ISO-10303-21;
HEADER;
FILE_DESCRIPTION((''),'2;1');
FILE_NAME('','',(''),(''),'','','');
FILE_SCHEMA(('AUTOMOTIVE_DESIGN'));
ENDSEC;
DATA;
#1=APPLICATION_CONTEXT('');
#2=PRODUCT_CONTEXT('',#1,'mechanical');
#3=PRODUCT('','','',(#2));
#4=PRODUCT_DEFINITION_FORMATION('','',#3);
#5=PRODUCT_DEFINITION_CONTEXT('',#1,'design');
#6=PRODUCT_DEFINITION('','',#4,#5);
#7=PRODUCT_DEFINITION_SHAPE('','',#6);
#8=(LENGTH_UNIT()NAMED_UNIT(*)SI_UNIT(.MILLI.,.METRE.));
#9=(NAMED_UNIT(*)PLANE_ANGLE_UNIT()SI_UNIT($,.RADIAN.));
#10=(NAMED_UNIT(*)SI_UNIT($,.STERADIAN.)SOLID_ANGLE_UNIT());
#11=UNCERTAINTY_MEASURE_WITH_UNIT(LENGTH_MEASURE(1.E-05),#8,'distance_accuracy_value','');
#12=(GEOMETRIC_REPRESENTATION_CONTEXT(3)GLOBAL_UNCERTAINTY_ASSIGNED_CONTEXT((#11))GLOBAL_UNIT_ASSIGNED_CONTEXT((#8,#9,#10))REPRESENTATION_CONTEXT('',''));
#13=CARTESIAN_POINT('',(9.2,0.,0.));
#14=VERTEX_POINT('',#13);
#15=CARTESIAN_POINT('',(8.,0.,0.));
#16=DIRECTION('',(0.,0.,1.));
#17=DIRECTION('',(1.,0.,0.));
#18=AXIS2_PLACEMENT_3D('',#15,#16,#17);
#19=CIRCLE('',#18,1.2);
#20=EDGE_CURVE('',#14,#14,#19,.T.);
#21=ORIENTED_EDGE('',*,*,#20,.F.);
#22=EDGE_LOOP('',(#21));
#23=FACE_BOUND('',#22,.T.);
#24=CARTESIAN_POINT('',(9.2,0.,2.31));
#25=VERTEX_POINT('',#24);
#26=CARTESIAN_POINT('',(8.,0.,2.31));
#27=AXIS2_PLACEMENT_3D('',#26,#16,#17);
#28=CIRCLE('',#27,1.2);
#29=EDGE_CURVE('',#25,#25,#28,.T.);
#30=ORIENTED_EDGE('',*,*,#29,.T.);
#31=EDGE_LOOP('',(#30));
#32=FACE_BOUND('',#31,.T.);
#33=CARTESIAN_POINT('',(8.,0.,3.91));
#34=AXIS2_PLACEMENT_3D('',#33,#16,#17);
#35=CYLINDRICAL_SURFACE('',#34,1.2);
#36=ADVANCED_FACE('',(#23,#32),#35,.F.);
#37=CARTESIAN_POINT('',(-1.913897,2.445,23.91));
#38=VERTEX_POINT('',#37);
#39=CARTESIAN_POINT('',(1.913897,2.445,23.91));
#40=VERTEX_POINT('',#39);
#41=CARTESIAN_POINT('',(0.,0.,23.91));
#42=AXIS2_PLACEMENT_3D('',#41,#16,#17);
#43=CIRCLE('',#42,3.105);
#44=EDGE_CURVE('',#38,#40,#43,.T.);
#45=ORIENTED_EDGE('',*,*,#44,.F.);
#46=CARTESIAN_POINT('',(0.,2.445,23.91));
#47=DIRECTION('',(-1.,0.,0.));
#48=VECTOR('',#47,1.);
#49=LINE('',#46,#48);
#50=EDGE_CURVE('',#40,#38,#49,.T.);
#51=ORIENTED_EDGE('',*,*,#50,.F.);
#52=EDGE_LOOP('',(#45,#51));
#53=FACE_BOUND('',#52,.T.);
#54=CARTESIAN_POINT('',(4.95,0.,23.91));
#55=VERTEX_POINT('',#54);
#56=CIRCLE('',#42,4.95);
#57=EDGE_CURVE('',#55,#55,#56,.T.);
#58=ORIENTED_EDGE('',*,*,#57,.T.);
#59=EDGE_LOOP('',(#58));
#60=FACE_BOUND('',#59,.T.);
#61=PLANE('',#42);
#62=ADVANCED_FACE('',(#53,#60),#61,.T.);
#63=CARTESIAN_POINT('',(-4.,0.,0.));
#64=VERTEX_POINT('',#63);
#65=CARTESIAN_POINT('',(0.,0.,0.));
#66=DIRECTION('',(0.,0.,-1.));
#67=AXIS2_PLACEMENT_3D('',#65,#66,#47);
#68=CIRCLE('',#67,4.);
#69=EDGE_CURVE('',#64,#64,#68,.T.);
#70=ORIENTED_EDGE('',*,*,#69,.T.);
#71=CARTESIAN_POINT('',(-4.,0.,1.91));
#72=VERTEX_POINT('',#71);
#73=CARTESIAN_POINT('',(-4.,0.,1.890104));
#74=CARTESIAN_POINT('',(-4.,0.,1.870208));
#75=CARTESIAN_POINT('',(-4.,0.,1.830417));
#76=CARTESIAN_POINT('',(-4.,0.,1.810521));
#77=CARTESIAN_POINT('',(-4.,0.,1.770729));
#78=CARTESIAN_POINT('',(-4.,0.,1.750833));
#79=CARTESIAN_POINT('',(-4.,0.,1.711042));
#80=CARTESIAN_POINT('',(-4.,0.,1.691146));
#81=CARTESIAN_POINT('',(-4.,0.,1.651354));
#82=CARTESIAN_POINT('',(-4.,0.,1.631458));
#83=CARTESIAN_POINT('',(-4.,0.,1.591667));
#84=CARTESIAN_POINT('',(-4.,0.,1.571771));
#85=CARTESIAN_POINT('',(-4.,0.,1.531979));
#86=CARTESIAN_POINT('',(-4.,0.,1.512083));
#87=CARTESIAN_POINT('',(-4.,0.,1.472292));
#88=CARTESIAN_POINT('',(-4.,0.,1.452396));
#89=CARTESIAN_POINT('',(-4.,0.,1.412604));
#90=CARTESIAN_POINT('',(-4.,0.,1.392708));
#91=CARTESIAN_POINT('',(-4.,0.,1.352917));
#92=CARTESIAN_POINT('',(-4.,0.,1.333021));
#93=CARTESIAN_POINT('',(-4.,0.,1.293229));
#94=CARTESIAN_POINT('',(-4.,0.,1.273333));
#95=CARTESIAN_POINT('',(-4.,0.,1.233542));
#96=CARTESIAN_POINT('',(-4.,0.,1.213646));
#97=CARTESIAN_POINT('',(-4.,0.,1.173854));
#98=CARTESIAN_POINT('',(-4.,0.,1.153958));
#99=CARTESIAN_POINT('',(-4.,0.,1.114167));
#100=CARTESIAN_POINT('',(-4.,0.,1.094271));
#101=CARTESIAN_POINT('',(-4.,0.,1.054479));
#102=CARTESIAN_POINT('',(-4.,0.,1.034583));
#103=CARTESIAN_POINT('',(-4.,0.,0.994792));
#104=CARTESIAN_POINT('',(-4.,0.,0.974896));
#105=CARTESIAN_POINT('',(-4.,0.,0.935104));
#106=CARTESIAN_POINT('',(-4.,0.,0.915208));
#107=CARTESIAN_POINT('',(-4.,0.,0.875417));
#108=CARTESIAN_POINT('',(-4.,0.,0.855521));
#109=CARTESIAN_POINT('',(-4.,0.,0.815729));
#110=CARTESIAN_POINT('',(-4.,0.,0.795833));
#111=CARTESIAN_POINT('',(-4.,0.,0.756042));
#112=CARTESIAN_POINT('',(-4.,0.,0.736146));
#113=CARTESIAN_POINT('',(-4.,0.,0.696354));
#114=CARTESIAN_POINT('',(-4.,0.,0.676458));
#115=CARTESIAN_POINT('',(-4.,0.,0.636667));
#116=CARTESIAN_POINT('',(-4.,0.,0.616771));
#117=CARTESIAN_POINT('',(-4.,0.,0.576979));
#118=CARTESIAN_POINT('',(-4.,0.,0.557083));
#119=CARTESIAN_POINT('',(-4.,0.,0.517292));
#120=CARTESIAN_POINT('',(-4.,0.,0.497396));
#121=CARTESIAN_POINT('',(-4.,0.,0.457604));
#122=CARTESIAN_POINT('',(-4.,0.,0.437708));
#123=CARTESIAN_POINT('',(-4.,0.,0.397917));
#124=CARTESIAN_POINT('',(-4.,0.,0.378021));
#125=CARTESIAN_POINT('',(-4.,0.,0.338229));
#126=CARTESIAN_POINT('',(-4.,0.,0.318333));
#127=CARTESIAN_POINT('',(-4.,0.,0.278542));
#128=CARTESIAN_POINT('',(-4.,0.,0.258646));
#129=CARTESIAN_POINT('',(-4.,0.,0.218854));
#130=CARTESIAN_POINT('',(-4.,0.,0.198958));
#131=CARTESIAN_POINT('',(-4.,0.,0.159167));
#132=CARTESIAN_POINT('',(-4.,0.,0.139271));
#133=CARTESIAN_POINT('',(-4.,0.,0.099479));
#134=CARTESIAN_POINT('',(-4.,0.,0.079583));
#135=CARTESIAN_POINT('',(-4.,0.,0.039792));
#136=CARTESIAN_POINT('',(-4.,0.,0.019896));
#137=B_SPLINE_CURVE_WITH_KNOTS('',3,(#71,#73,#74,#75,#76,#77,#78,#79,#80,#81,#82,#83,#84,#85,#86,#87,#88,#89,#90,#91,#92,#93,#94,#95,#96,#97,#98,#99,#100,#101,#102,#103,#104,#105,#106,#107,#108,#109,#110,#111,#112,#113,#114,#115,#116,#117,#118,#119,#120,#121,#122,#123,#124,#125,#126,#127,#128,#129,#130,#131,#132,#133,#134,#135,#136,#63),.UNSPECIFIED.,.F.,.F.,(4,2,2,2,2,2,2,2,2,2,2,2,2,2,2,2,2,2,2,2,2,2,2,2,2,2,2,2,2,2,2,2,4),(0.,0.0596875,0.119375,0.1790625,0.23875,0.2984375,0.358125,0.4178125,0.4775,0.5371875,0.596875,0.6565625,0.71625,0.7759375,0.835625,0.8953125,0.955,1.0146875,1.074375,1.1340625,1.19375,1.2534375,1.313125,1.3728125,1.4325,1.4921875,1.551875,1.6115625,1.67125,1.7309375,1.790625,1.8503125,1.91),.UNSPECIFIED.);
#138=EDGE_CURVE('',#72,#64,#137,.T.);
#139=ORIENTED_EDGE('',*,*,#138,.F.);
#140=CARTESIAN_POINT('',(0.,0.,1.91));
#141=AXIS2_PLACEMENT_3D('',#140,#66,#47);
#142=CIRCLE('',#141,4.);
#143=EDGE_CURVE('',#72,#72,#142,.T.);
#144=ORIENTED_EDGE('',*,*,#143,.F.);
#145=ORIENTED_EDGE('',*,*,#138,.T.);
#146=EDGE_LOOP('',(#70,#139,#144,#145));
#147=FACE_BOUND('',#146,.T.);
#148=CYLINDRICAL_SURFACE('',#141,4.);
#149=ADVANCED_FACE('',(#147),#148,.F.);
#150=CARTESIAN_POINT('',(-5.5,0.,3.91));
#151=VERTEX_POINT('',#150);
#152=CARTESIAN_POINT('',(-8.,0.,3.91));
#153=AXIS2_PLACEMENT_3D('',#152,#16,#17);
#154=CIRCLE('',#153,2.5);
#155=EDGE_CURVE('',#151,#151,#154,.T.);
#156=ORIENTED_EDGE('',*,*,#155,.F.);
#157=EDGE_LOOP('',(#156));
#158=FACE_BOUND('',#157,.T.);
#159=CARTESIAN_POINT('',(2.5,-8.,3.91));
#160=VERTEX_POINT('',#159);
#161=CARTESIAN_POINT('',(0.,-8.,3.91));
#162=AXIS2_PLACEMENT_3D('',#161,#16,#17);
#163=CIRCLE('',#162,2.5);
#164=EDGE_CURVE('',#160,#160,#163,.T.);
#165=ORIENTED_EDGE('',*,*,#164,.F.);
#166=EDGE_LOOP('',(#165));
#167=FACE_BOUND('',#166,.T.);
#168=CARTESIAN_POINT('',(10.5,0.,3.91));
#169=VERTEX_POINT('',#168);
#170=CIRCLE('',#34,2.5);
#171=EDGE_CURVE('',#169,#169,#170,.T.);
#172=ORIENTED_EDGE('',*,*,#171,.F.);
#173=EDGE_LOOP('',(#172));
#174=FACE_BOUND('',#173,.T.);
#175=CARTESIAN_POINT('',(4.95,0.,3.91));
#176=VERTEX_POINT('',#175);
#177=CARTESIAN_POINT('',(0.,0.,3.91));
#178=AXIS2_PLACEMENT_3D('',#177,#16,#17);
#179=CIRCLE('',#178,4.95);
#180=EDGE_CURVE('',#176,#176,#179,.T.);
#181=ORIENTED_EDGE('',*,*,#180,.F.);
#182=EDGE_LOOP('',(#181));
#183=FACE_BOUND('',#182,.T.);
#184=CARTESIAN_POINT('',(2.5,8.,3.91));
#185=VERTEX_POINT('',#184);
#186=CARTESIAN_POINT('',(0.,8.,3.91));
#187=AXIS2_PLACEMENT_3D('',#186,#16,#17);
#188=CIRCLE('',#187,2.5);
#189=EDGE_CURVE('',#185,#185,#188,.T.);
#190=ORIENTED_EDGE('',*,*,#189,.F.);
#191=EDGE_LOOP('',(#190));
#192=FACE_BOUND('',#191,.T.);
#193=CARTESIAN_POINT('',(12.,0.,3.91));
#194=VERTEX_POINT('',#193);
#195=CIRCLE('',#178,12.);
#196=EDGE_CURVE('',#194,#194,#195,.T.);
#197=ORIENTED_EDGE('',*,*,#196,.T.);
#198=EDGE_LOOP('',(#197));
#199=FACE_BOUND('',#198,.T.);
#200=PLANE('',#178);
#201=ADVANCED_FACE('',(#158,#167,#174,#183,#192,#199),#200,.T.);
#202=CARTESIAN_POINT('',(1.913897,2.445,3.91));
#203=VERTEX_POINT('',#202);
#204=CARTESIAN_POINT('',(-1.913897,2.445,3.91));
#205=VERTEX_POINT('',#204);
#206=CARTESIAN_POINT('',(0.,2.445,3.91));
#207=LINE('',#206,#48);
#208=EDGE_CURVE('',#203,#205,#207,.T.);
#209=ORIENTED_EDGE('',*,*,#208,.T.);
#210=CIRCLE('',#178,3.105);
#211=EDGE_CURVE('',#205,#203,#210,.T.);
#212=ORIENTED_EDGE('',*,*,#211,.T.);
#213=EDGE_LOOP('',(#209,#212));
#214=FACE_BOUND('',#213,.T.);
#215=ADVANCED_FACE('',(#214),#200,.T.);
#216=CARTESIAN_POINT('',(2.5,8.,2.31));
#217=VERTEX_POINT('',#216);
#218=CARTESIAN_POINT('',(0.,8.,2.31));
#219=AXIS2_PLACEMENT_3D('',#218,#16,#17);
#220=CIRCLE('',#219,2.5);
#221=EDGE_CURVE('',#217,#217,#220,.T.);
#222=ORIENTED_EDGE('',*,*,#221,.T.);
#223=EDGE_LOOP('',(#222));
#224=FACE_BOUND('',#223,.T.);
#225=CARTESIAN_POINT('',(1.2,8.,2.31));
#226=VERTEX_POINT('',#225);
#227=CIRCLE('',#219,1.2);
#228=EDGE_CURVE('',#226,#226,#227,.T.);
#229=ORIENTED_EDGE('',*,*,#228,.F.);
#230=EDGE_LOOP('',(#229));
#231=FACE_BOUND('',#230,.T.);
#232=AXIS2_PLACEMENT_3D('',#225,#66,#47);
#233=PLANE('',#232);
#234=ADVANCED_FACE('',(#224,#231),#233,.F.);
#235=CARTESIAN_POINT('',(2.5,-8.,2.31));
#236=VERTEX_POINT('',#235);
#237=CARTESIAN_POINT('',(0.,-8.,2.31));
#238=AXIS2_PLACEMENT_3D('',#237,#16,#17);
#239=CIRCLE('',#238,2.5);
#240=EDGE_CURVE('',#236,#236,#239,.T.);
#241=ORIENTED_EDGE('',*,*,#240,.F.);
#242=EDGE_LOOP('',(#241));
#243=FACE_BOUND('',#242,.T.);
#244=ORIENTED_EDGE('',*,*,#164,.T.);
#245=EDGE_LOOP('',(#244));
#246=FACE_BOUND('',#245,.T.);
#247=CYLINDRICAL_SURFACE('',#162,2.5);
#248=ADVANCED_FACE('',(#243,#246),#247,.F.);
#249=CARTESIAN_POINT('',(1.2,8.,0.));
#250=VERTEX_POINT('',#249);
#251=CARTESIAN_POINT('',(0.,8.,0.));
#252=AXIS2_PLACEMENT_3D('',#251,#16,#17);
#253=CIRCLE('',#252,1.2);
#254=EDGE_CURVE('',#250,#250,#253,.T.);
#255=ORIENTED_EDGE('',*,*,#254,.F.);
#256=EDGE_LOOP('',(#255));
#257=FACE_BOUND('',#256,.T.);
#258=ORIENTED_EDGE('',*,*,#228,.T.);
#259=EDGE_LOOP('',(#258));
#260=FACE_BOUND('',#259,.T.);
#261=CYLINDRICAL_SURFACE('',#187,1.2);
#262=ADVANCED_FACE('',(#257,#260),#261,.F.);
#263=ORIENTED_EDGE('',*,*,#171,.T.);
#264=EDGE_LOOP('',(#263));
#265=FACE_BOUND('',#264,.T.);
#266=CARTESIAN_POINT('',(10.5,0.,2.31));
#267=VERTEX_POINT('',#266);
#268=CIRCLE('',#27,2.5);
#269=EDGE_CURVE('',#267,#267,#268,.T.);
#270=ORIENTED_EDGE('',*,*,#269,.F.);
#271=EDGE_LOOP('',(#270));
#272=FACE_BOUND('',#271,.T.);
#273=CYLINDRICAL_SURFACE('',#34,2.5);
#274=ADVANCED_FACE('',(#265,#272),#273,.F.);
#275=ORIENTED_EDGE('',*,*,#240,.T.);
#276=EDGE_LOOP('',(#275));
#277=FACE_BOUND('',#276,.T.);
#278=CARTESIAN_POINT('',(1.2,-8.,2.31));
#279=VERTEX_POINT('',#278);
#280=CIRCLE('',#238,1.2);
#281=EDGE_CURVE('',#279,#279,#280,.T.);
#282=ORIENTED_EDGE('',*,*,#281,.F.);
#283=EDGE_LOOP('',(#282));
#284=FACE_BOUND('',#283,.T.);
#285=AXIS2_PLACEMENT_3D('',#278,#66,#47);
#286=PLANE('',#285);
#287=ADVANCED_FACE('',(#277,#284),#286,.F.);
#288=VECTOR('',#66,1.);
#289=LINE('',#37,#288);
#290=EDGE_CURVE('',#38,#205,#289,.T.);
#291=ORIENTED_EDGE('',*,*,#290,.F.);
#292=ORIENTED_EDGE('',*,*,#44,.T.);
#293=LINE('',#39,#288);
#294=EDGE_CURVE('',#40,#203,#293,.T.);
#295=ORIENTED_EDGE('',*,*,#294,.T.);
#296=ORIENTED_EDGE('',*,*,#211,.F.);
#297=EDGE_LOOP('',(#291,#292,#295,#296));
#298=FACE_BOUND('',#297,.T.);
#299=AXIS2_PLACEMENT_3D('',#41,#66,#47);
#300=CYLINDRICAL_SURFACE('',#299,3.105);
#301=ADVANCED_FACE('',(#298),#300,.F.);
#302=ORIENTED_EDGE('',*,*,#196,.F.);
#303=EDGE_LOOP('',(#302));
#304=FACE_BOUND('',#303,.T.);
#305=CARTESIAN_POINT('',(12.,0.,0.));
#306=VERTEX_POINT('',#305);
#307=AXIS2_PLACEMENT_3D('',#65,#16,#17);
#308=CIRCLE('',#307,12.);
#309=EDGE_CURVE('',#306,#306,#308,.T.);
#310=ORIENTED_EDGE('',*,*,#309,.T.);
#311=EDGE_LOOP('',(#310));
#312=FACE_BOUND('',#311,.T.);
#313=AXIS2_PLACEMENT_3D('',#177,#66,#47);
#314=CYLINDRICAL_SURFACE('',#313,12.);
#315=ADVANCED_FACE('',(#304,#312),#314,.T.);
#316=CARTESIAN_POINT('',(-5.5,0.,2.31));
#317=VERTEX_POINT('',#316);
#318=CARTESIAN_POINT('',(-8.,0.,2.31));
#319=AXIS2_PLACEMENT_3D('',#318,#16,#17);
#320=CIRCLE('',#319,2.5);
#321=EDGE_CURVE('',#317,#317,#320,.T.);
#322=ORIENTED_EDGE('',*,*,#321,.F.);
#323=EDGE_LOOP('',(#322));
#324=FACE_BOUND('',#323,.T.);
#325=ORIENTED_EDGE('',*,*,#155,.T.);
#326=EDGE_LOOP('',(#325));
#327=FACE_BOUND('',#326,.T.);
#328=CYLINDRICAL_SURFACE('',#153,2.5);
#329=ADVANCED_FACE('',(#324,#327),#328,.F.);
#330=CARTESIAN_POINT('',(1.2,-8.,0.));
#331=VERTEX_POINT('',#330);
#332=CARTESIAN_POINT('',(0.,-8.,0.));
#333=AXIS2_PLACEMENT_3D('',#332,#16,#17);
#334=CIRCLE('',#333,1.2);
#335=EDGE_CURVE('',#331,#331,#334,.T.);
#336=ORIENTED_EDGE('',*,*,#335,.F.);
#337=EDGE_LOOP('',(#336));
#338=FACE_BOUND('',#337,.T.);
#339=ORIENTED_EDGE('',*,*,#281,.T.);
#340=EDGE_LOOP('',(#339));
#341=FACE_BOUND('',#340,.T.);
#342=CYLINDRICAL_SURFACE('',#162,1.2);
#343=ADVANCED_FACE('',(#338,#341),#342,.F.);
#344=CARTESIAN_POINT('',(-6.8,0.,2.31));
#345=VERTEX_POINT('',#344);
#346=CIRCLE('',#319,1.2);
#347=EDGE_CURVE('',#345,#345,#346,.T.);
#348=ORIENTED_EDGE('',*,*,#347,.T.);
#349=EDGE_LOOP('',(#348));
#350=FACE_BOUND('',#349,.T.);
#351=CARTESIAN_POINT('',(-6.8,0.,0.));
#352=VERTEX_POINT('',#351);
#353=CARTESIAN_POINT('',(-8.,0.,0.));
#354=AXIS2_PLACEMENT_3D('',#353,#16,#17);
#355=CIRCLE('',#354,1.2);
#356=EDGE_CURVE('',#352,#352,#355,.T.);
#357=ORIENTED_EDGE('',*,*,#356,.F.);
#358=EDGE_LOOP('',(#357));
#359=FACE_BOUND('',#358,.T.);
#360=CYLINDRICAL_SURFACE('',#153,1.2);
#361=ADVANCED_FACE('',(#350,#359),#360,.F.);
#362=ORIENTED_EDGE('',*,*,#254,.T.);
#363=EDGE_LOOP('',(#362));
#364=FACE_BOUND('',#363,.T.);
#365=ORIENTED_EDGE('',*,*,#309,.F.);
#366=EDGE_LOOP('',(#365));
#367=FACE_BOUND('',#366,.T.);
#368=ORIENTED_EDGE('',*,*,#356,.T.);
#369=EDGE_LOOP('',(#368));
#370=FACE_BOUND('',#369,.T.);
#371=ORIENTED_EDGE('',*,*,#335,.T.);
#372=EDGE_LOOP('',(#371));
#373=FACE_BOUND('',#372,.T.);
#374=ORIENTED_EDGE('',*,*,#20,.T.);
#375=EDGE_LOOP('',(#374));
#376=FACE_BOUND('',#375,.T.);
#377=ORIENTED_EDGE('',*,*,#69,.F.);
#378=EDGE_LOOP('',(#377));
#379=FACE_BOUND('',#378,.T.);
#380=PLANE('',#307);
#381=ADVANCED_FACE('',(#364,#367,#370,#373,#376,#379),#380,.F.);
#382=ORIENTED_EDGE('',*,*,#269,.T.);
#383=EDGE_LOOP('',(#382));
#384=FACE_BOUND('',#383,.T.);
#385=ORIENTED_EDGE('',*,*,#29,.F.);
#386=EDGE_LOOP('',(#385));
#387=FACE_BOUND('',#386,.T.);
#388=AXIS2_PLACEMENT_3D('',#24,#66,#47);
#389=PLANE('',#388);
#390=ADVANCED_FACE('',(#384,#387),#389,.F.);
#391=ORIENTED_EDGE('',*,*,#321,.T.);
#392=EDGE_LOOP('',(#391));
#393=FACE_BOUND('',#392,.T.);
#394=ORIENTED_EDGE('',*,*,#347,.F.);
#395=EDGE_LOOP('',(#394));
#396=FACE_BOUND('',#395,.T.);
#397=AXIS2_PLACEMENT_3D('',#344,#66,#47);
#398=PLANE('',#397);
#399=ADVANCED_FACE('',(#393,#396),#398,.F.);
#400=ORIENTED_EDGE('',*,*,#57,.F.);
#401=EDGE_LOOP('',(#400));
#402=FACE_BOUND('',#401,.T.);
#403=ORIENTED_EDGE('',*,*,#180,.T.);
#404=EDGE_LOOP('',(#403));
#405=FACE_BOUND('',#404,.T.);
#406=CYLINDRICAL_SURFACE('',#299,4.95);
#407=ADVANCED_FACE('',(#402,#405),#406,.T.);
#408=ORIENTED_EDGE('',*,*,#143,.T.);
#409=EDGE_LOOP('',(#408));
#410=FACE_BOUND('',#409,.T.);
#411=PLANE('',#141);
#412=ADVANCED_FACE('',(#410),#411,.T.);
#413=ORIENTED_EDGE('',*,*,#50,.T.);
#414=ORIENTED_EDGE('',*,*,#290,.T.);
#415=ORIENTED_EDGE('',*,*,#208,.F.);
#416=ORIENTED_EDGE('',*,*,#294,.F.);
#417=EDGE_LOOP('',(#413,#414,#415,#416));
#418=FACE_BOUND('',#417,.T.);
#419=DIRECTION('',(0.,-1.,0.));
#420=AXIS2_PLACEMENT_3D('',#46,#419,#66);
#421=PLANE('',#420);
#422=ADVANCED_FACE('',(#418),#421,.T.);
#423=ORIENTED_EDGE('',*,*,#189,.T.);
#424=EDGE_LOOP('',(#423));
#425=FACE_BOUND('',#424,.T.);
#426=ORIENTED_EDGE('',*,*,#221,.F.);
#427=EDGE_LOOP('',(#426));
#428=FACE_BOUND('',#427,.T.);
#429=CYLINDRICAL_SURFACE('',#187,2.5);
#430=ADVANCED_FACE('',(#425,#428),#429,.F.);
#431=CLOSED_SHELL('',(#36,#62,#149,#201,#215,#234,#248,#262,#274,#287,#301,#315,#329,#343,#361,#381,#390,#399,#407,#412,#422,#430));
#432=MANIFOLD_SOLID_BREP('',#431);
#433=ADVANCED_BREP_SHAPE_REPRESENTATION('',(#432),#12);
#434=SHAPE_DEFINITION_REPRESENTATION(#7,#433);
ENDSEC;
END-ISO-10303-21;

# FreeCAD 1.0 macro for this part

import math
import FreeCAD as App
import Part
import Sketcher
Q = App.Units.Quantity

doc = App.newDocument("Part")
body = doc.addObject("PartDesign::Body", "Body")

# Sketch on XY plane
sketch1 = doc.addObject("Sketcher::SketchObject", "Sketch")
body.addObject(sketch1)
sketch1.AttachmentSupport = (doc.XY_Plane, [""])
sketch1.MapMode = "FlatFace"
sketch1.addGeometry(Part.Circle(App.Vector(0, 0, 0), App.Vector(0, 0, 1), 12), False)
sketch1.addConstraint([
    Sketcher.Constraint("Coincident", 0, 3, -1, 1),
    Sketcher.Constraint("Diameter", 0, Q("24 mm")),
])
pad1 = doc.addObject("PartDesign::Pad", "Pad")
body.addObject(pad1)
pad1.Profile = sketch1
pad1.Length = 3.91

# Sketch on XY plane
sketch2 = doc.addObject("Sketcher::SketchObject", "Sketch001")
body.addObject(sketch2)
sketch2.AttachmentSupport = (doc.XY_Plane, [""])
sketch2.MapMode = "FlatFace"
sketch2.addGeometry(Part.Circle(App.Vector(0, 0, 0), App.Vector(0, 0, 1), 4), False)
sketch2.addConstraint([
    Sketcher.Constraint("Coincident", 0, 3, -1, 1),
    Sketcher.Constraint("Diameter", 0, Q("8 mm")),
])
pocket1 = doc.addObject("PartDesign::Pocket", "Pocket")
body.addObject(pocket1)
pocket1.Profile = sketch2
pocket1.Length = 1.91
pocket1.Reversed = True

# Sketch on XY plane
sketch3 = doc.addObject("Sketcher::SketchObject", "Sketch002")
body.addObject(sketch3)
sketch3.AttachmentSupport = (doc.XY_Plane, [""])
sketch3.MapMode = "FlatFace"
sketch3.AttachmentOffset = App.Placement(App.Vector(0, 0, 3.91), App.Rotation())
sketch3.addGeometry([
    Part.Circle(App.Vector(0, 0, 0), App.Vector(0, 0, 1), 5),
    Part.LineSegment(App.Vector(-1.9, 2.4, 0), App.Vector(1.9, 2.4, 0)),
    Part.ArcOfCircle(Part.Circle(App.Vector(0, 0, 0), App.Vector(0, 0, 1), 3.1), math.radians(128), math.radians(412)),
], False)
sketch3.addConstraint([
    Sketcher.Constraint("Coincident", 1, 1, 2, 1),
    Sketcher.Constraint("Coincident", 2, 2, 1, 2),
    Sketcher.Constraint("Horizontal", 1),
    Sketcher.Constraint("Coincident", 0, 3, -1, 1),
    Sketcher.Constraint("Coincident", 2, 3, -1, 1),
    Sketcher.Constraint("Diameter", 0, Q("9.9 mm")),
    Sketcher.Constraint("Radius", 2, Q("3.105 mm")),
    Sketcher.Constraint("DistanceY", -1, 1, 1, 1, Q("2.445 mm")),
])
pad2 = doc.addObject("PartDesign::Pad", "Pad001")
body.addObject(pad2)
pad2.Profile = sketch3
pad2.Length = 20

# Sketch on XY plane
sketch4 = doc.addObject("Sketcher::SketchObject", "Sketch003")
body.addObject(sketch4)
sketch4.AttachmentSupport = (doc.XY_Plane, [""])
sketch4.MapMode = "FlatFace"
sketch4.AttachmentOffset = App.Placement(App.Vector(0, 0, 3.91), App.Rotation())
sketch4.addGeometry(Part.Circle(App.Vector(0, 8, 0), App.Vector(0, 0, 1), 1.2), False)
sketch4.addConstraint([
    Sketcher.Constraint("PointOnObject", 0, 3, -2),
    Sketcher.Constraint("Diameter", 0, Q("2.4 mm")),
    Sketcher.Constraint("DistanceY", -1, 1, 0, 3, Q("8 mm")),
])
doc.recompute()
hole = doc.addObject("PartDesign::Hole", "Hole")
body.addObject(hole)
hole.Profile = sketch4
hole.ThreadType = "None"
hole.Diameter = 2.4
hole.DepthType = "ThroughAll"
hole.HoleCutType = "Counterbore"
hole.HoleCutDiameter = 5
hole.HoleCutDepth = 1.6
doc.recompute()

polarpattern = doc.addObject("PartDesign::PolarPattern", "PolarPattern")
body.addObject(polarpattern)
polarpattern.Originals = [hole]
polarpattern.Axis = (doc.Z_Axis, [""])
polarpattern.Angle = 360
polarpattern.Occurrences = 4
body.Tip = polarpattern

doc.recompute()
